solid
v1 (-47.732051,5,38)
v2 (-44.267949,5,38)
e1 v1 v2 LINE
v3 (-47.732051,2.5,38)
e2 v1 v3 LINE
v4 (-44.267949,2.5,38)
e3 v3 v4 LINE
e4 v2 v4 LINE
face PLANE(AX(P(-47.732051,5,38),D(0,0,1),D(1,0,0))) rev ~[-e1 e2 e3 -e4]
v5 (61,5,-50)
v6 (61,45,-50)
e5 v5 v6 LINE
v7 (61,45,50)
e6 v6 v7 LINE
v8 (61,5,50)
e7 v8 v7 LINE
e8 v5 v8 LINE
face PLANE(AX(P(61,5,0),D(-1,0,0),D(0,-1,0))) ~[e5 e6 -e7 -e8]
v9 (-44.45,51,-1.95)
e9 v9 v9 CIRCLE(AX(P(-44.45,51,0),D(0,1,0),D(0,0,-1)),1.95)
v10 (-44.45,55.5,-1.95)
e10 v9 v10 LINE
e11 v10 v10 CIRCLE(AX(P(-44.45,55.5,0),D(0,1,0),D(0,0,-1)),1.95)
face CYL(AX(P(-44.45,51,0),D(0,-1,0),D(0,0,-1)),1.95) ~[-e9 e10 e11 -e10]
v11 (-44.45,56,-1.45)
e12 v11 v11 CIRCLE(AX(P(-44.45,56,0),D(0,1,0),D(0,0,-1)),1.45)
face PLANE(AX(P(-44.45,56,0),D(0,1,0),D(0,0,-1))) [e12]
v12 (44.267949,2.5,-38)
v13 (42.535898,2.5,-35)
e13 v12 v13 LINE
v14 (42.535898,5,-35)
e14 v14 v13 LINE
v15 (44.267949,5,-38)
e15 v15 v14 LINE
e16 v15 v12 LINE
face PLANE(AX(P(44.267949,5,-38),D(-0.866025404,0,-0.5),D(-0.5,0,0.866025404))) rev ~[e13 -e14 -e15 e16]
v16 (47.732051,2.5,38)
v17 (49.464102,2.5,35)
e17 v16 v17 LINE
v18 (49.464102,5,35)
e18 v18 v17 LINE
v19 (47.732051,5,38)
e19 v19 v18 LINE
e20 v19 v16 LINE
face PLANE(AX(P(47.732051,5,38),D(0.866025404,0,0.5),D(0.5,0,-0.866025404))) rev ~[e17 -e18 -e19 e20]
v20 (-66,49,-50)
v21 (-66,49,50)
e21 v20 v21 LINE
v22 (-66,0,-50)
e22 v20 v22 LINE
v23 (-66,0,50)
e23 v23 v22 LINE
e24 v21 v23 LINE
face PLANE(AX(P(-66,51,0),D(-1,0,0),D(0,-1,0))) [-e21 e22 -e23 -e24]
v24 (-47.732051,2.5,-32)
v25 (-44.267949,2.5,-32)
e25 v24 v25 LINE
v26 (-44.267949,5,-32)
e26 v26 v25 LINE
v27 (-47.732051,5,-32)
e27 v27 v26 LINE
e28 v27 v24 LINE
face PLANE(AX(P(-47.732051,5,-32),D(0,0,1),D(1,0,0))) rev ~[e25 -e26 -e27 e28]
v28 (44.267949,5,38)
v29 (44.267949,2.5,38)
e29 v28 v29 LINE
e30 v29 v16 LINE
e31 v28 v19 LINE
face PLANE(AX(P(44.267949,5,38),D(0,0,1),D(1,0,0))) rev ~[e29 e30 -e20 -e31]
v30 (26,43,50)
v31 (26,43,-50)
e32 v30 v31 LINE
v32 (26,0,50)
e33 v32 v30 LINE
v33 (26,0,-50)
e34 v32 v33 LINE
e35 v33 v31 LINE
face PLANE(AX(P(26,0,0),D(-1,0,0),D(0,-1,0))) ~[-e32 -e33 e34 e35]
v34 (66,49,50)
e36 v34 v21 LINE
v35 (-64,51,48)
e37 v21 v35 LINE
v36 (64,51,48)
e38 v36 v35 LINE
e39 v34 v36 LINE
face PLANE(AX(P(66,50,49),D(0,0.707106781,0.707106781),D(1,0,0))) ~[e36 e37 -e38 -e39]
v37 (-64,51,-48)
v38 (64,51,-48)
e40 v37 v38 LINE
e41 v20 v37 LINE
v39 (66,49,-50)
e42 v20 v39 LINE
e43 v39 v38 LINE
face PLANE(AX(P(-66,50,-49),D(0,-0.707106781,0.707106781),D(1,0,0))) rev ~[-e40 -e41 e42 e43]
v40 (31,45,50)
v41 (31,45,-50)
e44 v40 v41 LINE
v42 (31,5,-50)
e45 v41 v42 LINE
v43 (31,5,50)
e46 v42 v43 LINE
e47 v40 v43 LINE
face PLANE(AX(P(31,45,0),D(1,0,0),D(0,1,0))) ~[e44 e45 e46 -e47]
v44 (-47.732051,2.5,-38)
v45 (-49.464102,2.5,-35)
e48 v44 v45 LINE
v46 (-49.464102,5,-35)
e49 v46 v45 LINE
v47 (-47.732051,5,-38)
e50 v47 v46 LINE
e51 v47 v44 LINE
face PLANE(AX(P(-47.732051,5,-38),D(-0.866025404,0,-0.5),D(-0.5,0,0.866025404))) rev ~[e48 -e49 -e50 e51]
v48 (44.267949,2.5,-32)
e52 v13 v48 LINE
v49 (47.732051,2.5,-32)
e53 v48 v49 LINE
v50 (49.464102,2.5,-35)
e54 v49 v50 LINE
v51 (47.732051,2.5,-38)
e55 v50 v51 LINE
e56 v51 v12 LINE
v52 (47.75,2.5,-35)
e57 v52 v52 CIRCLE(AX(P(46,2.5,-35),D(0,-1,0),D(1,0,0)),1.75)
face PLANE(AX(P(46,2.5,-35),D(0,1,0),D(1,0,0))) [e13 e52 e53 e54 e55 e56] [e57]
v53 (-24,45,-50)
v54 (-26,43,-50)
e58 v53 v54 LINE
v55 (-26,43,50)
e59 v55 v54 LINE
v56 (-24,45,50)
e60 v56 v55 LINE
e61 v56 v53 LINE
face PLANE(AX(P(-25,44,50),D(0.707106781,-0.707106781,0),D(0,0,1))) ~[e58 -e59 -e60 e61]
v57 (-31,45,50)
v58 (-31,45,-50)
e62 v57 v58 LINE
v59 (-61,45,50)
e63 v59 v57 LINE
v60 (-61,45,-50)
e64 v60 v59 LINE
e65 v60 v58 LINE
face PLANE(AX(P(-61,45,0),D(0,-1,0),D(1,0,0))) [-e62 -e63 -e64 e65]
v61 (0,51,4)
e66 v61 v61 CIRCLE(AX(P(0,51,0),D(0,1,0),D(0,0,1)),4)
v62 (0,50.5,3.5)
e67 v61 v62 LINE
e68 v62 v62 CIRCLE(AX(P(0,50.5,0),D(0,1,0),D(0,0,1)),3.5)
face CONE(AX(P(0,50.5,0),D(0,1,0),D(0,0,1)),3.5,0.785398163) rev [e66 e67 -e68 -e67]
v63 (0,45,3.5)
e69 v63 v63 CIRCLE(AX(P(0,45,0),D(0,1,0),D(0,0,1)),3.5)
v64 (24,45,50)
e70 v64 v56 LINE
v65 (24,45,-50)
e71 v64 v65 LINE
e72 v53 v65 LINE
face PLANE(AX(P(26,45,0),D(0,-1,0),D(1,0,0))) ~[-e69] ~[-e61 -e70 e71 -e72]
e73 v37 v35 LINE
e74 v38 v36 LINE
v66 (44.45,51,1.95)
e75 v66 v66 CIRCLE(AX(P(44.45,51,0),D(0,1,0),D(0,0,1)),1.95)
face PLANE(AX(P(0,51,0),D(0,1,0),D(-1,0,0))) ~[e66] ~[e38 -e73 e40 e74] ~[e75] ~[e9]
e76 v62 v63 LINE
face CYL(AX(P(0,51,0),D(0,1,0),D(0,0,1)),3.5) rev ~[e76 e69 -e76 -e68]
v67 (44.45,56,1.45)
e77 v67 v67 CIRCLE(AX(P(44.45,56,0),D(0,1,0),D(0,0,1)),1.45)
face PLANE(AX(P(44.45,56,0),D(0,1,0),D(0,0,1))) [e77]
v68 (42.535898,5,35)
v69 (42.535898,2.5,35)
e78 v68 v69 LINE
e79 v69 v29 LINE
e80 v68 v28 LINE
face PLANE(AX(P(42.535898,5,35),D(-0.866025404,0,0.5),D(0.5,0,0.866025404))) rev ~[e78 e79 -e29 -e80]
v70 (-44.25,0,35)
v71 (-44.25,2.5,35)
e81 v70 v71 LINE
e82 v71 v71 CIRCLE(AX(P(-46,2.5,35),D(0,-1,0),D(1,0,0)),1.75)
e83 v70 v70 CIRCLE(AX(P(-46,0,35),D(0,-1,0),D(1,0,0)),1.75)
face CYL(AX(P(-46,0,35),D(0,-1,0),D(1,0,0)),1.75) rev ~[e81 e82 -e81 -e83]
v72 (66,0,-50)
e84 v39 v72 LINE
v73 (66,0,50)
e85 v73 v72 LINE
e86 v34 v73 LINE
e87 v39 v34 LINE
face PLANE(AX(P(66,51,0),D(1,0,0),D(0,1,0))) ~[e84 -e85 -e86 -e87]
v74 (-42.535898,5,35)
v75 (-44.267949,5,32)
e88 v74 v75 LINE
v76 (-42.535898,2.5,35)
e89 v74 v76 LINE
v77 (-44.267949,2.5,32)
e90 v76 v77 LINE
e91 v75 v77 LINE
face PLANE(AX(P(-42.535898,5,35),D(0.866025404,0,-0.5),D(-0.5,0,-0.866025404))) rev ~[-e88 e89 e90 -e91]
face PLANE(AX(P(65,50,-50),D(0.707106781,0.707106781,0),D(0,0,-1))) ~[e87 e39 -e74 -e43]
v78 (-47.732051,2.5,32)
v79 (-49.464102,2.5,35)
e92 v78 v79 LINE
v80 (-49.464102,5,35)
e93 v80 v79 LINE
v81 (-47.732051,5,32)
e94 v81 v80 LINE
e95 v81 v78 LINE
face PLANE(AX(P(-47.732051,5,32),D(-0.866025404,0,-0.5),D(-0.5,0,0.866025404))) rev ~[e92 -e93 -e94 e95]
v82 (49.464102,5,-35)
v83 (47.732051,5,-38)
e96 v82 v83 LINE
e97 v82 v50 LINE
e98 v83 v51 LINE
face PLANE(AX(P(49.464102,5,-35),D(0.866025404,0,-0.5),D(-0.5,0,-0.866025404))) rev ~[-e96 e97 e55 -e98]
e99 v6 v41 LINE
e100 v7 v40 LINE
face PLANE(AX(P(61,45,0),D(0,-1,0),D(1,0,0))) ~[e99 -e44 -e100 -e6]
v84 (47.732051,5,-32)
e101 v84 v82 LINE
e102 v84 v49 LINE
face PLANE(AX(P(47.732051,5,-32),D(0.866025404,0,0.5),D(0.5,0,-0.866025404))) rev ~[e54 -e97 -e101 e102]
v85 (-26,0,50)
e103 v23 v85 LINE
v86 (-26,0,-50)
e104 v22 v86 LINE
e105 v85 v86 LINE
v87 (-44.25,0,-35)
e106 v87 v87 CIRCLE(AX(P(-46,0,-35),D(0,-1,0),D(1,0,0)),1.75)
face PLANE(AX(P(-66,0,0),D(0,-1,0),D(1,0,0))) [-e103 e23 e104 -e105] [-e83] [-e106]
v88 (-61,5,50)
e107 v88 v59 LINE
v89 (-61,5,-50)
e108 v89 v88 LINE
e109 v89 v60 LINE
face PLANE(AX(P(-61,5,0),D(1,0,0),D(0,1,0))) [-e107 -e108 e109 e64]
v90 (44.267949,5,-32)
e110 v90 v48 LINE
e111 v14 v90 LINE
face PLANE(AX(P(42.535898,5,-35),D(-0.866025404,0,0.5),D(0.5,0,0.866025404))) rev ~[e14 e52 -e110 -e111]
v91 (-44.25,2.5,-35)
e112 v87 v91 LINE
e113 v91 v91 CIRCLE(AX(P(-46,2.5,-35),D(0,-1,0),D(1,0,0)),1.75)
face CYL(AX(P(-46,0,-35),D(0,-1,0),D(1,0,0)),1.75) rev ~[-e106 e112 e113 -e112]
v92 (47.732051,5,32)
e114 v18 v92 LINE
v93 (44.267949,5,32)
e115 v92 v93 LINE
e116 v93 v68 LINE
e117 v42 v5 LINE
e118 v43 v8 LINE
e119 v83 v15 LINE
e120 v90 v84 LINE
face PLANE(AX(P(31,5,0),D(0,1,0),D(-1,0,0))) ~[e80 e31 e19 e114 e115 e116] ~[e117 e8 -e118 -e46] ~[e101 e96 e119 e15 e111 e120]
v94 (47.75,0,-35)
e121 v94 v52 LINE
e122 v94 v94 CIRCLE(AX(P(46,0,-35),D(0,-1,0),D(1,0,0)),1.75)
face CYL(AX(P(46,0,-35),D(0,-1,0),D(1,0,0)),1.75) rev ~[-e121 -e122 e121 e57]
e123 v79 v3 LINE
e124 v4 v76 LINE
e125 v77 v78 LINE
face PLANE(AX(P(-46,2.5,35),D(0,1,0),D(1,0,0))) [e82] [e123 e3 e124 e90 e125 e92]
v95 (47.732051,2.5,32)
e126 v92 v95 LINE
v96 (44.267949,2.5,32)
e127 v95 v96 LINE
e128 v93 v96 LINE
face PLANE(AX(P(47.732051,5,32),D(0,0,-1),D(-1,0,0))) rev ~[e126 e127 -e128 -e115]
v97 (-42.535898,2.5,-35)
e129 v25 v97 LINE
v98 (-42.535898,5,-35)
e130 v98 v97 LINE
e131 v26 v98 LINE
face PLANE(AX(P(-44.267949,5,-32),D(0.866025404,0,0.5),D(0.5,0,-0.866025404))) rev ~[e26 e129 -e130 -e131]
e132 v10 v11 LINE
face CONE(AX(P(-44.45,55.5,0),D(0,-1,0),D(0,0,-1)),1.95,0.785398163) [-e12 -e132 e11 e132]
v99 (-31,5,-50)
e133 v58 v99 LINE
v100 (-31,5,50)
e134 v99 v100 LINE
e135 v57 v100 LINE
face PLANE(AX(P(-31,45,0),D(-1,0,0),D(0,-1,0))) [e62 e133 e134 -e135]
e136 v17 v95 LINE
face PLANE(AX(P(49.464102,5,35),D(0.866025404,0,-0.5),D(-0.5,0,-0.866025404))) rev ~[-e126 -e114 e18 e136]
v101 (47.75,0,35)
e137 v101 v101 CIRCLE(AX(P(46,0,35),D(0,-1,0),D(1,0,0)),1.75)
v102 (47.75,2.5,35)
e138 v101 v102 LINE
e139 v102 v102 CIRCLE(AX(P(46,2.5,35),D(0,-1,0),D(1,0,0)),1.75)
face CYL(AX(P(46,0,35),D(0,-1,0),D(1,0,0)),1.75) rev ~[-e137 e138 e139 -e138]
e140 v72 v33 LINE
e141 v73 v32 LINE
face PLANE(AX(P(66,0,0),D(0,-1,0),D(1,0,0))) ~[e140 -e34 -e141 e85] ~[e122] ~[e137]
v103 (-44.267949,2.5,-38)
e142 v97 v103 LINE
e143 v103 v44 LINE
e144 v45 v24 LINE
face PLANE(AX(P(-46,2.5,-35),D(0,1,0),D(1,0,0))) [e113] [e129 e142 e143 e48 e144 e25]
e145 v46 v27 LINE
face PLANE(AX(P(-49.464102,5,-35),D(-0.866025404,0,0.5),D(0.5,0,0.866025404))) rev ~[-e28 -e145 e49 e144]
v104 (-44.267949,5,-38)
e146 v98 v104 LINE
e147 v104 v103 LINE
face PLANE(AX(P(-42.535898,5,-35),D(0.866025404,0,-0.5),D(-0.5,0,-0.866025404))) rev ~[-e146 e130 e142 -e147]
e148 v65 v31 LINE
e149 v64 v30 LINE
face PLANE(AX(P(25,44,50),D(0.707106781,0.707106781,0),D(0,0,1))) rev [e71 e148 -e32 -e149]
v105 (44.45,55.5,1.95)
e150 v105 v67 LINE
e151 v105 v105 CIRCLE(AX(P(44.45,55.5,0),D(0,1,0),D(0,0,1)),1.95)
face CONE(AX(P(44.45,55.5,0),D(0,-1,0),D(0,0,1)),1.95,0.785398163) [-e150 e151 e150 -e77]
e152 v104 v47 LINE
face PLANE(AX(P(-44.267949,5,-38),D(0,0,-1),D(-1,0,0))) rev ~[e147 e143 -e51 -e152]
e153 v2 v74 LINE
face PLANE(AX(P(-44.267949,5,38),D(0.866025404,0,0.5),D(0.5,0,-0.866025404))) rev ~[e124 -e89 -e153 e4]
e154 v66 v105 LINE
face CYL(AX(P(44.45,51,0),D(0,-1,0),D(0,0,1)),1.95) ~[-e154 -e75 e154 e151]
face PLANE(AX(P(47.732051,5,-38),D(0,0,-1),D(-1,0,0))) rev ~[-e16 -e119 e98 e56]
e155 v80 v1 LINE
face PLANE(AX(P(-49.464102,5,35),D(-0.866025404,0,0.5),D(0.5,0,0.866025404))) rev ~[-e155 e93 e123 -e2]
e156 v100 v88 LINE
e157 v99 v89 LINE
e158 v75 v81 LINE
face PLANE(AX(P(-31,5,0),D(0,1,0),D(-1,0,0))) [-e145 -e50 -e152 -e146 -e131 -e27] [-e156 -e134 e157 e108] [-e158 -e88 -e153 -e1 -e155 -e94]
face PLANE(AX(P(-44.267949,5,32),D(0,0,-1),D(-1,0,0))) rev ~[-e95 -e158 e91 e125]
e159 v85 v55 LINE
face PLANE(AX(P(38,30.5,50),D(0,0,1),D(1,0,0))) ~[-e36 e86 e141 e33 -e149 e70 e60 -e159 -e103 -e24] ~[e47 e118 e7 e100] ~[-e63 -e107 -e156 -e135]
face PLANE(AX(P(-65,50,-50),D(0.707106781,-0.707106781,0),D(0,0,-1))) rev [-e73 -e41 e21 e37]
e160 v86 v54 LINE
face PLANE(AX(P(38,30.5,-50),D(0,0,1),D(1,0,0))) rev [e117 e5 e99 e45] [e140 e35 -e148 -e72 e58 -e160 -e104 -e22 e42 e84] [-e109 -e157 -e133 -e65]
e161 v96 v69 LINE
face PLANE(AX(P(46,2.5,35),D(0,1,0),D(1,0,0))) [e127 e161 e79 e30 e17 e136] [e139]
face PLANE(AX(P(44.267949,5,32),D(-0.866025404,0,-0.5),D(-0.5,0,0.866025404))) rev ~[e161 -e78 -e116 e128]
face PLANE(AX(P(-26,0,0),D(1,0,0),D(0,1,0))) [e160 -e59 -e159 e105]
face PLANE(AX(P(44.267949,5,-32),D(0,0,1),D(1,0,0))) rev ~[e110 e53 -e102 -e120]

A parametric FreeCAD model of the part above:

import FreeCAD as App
import Part
import Sketcher
Q = App.Units.Quantity


def edges_at(feature, points):
    """Names of the edges that pass closest to the given points."""
    edges = feature.Shape.Edges
    near = lambda p: min(range(len(edges)), key=lambda i: edges[i].distToShape(Part.Vertex(*p))[0])
    return sorted({f"Edge{near(p) + 1}" for p in points})


def add_polygon(sketch, points):
    """Adds a closed chain of lines whose ends are joined by coincident constraints."""
    first, n = sketch.GeometryCount, len(points)
    for a, b in zip(points, points[1:] + points[:1]):
        sketch.addGeometry(Part.LineSegment(App.Vector(*a, 0), App.Vector(*b, 0)), False)
    for i in range(n):
        sketch.addConstraint(Sketcher.Constraint("Coincident", first + i, 2, first + (i + 1) % n, 1))

doc = App.newDocument("Part")
params = doc.addObject("Spreadsheet::Sheet", "Params")
for row, (alias, value) in enumerate([
    ("sketch1_width", "26 mm"),
    ("sketch1_width2", "66 mm"),
    ("sketch1_width3", "30 mm"),
    ("sketch1_height", "6 mm"),
    ("sketch1_height2", "51 mm"),
    ("pad1_length", "100 mm"),
    ("sketch2_diameter", "7 mm"),
    ("sketch3_diameter", "3.9 mm"),
    ("pad2_length", "5 mm"),
    ("sketch4_diameter", "3.5 mm"),
    ("sketch5_diameter", "3.5 mm"),
    ("sketch6_diameter", "3.5 mm"),
    ("sketch7_diameter", "3.5 mm"),
    ("chamfer_size", "2 mm"),
    ("chamfer2_size", "2 mm"),
    ("chamfer3_size", "0.5 mm"),
    ("pocket6_length", "2.5 mm"),
], start=1):
    params.set(f"A{row}", alias)
    params.set(f"B{row}", "=" + value)
    params.setAlias(f"B{row}", alias)

body = doc.addObject("PartDesign::Body", "Body")

# Sketch on XY plane
sketch1 = body.newObject("Sketcher::SketchObject", "Sketch")
sketch1.AttachmentSupport = (doc.getObject("XY_Plane"), [""])
sketch1.MapMode = "FlatFace"
add_polygon(sketch1, [(-26, 45), (0, 45), (0, 51), (-66, 51), (-66, 0), (-26, 0)])  # lines 0-5
add_polygon(sketch1, [(-31, 45), (-31, 5), (-61, 5), (-61, 45)])  # lines 6-9
sketch1.addConstraint([
    Sketcher.Constraint("Horizontal", 0),
    Sketcher.Constraint("Vertical", 1),
    Sketcher.Constraint("Horizontal", 2),
    Sketcher.Constraint("Vertical", 3),
    Sketcher.Constraint("Horizontal", 4),
    Sketcher.Constraint("Vertical", 5),
    Sketcher.Constraint("Vertical", 6),
    Sketcher.Constraint("Horizontal", 7),
    Sketcher.Constraint("Vertical", 8),
    Sketcher.Constraint("Horizontal", 9),
    Sketcher.Constraint("PointOnObject", 0, 2, -2),
    Sketcher.Constraint("PointOnObject", 3, 2, -1),
    Sketcher.Constraint("Horizontal", 5, 2, 8, 2),
    Sketcher.Constraint("Equal", 4, 6),
    Sketcher.Constraint("DistanceX", 0, 1, 0, 2, 26.0),
    Sketcher.Constraint("DistanceX", 2, 2, 2, 1, 66.0),
    Sketcher.Constraint("DistanceX", 7, 2, 7, 1, 30.0),
    Sketcher.Constraint("DistanceY", 1, 1, 1, 2, 6.0),
    Sketcher.Constraint("DistanceY", 3, 2, 3, 1, 51.0),
    Sketcher.Constraint("DistanceX", 6, 2, -1, 1, 31.0),
])
sketch1.setExpression("Constraints[24]", "Params.sketch1_width")
sketch1.setExpression("Constraints[25]", "Params.sketch1_width2")
sketch1.setExpression("Constraints[26]", "Params.sketch1_width3")
sketch1.setExpression("Constraints[27]", "Params.sketch1_height")
sketch1.setExpression("Constraints[28]", "Params.sketch1_height2")
pad1 = body.newObject("PartDesign::Pad", "Pad")
pad1.Profile = sketch1
pad1.setExpression("Length", "Params.pad1_length")
pad1.Midplane = True
doc.recompute()

mirrored = body.newObject("PartDesign::Mirrored", "Mirrored")
mirrored.Originals = [pad1]
mirrored.MirrorPlane = (doc.getObject("YZ_Plane"), [""])
body.Tip = mirrored

# Sketch on XZ plane
sketch2 = body.newObject("Sketcher::SketchObject", "Sketch001")
sketch2.AttachmentSupport = (doc.getObject("XZ_Plane"), [""])
sketch2.MapMode = "FlatFace"
sketch2.AttachmentOffset = App.Placement(App.Vector(0, 0, -51), App.Rotation())
sketch2.addGeometry(Part.Circle(App.Vector(0, 0, 0), App.Vector(0, 0, 1), 3.5), False)
sketch2.addConstraint([
    Sketcher.Constraint("Coincident", 0, 3, -1, 1),
    Sketcher.Constraint("Diameter", 0, 7.0),
])
sketch2.setExpression("Constraints[1]", "Params.sketch2_diameter")
pocket1 = body.newObject("PartDesign::Pocket", "Pocket")
pocket1.Profile = sketch2
pocket1.Type = "ThroughAll"
pocket1.Reversed = True

# Sketch on XZ plane
sketch3 = body.newObject("Sketcher::SketchObject", "Sketch002")
sketch3.AttachmentSupport = (doc.getObject("XZ_Plane"), [""])
sketch3.MapMode = "FlatFace"
sketch3.AttachmentOffset = App.Placement(App.Vector(0, 0, -51), App.Rotation())
sketch3.addGeometry([
    Part.Circle(App.Vector(44.45, 0, 0), App.Vector(0, 0, 1), 1.95),
    Part.Circle(App.Vector(-44.45, 0, 0), App.Vector(0, 0, 1), 1.95),
], False)
sketch3.addConstraint([
    Sketcher.Constraint("Equal", 0, 1),
    Sketcher.Constraint("Symmetric", 0, 3, 1, 3, -1, 1),
    Sketcher.Constraint("PointOnObject", 0, 3, -1),
    Sketcher.Constraint("Diameter", 0, 3.9),
    Sketcher.Constraint("DistanceX", 1, 3, 0, 3, 88.9),
])
sketch3.setExpression("Constraints[3]", "Params.sketch3_diameter")
pad2 = body.newObject("PartDesign::Pad", "Pad001")
pad2.Profile = sketch3
pad2.setExpression("Length", "Params.pad2_length")
pad2.Reversed = True

# Sketch on XZ plane
sketch4 = body.newObject("Sketcher::SketchObject", "Sketch003")
sketch4.AttachmentSupport = (doc.getObject("XZ_Plane"), [""])
sketch4.MapMode = "FlatFace"
sketch4.addGeometry(Part.Circle(App.Vector(-46, 35, 0), App.Vector(0, 0, 1), 1.75), False)
sketch4.addConstraint([
    Sketcher.Constraint("Diameter", 0, 3.5),
    Sketcher.Constraint("DistanceX", 0, 3, -1, 1, 46.0),
    Sketcher.Constraint("DistanceY", -1, 1, 0, 3, 35.0),
])
sketch4.setExpression("Constraints[0]", "Params.sketch4_diameter")
pocket2 = body.newObject("PartDesign::Pocket", "Pocket001")
pocket2.Profile = sketch4
pocket2.Type = "UpToFirst"

# Sketch on XZ plane
sketch5 = body.newObject("Sketcher::SketchObject", "Sketch004")
sketch5.AttachmentSupport = (doc.getObject("XZ_Plane"), [""])
sketch5.MapMode = "FlatFace"
sketch5.addGeometry(Part.Circle(App.Vector(46, 35, 0), App.Vector(0, 0, 1), 1.75), False)
sketch5.addConstraint([
    Sketcher.Constraint("Diameter", 0, 3.5),
    Sketcher.Constraint("DistanceX", -1, 1, 0, 3, 46.0),
    Sketcher.Constraint("DistanceY", -1, 1, 0, 3, 35.0),
])
sketch5.setExpression("Constraints[0]", "Params.sketch5_diameter")
pocket3 = body.newObject("PartDesign::Pocket", "Pocket002")
pocket3.Profile = sketch5
pocket3.Type = "UpToFirst"

# Sketch on XZ plane
sketch6 = body.newObject("Sketcher::SketchObject", "Sketch005")
sketch6.AttachmentSupport = (doc.getObject("XZ_Plane"), [""])
sketch6.MapMode = "FlatFace"
sketch6.addGeometry(Part.Circle(App.Vector(46, -35, 0), App.Vector(0, 0, 1), 1.75), False)
sketch6.addConstraint([
    Sketcher.Constraint("Diameter", 0, 3.5),
    Sketcher.Constraint("DistanceX", -1, 1, 0, 3, 46.0),
    Sketcher.Constraint("DistanceY", 0, 3, -1, 1, 35.0),
])
sketch6.setExpression("Constraints[0]", "Params.sketch6_diameter")
pocket4 = body.newObject("PartDesign::Pocket", "Pocket003")
pocket4.Profile = sketch6
pocket4.Type = "UpToFirst"

# Sketch on XZ plane
sketch7 = body.newObject("Sketcher::SketchObject", "Sketch006")
sketch7.AttachmentSupport = (doc.getObject("XZ_Plane"), [""])
sketch7.MapMode = "FlatFace"
sketch7.addGeometry(Part.Circle(App.Vector(-46, -35, 0), App.Vector(0, 0, 1), 1.75), False)
sketch7.addConstraint([
    Sketcher.Constraint("Diameter", 0, 3.5),
    Sketcher.Constraint("DistanceX", 0, 3, -1, 1, 46.0),
    Sketcher.Constraint("DistanceY", 0, 3, -1, 1, 35.0),
])
sketch7.setExpression("Constraints[0]", "Params.sketch7_diameter")
pocket5 = body.newObject("PartDesign::Pocket", "Pocket004")
pocket5.Profile = sketch7
pocket5.Type = "UpToFirst"
doc.recompute()

chamfer = body.newObject("PartDesign::Chamfer", "Chamfer")
chamfer.Base = (pocket5, edges_at(pocket5, [(-26, 45, 0), (26, 45, 0)]))
chamfer.setExpression("Size", "Params.chamfer_size")
doc.recompute()

chamfer2 = body.newObject("PartDesign::Chamfer", "Chamfer001")
chamfer2.Base = (chamfer, edges_at(chamfer, [
    (0, 51, -50),
    (-66, 51, 0),
    (66, 51, 0),
    (0, 51, 50),
]))
chamfer2.setExpression("Size", "Params.chamfer2_size")
doc.recompute()

chamfer3 = body.newObject("PartDesign::Chamfer", "Chamfer002")
chamfer3.Base = (chamfer2, edges_at(chamfer2, [(0, 51, -3.5), (44.45, 56, -1.95), (-44.45, 56, 1.95)]))
chamfer3.setExpression("Size", "Params.chamfer3_size")

# Sketch on XZ plane
sketch8 = body.newObject("Sketcher::SketchObject", "Sketch007")
sketch8.AttachmentSupport = (doc.getObject("XZ_Plane"), [""])
sketch8.MapMode = "FlatFace"
sketch8.AttachmentOffset = App.Placement(App.Vector(0, 0, -5), App.Rotation())
add_polygon(sketch8, [(42.535898, -35), (44.267949, -32), (47.732051, -32), (49.464102, -35), (47.732051, -38), (44.267949, -38)])  # lines 0-5
add_polygon(sketch8, [(-47.732051, -32), (-44.267949, -32), (-42.535898, -35), (-44.267949, -38), (-47.732051, -38), (-49.464102, -35)])  # lines 6-11
add_polygon(sketch8, [(-47.732051, 38), (-44.267949, 38), (-42.535898, 35), (-44.267949, 32), (-47.732051, 32), (-49.464102, 35)])  # lines 12-17
add_polygon(sketch8, [(42.535898, 35), (44.267949, 38), (47.732051, 38), (49.464102, 35), (47.732051, 32), (44.267949, 32)])  # lines 18-23
sketch8.addConstraint([
    Sketcher.Constraint("Horizontal", 1),
    Sketcher.Constraint("Horizontal", 4),
    Sketcher.Constraint("Horizontal", 6),
    Sketcher.Constraint("Horizontal", 9),
    Sketcher.Constraint("Horizontal", 12),
    Sketcher.Constraint("Horizontal", 15),
    Sketcher.Constraint("Horizontal", 19),
    Sketcher.Constraint("Horizontal", 22),
    Sketcher.Constraint("Symmetric", 4, 2, 12, 2, -1, 1),
    Sketcher.Constraint("Symmetric", 5, 2, 13, 2, -1, 1),
    Sketcher.Constraint("Symmetric", 0, 2, 14, 2, -1, 1),
    Sketcher.Constraint("Symmetric", 2, 2, 16, 2, -1, 1),
    Sketcher.Constraint("Symmetric", 8, 2, 18, 2, -1, 1),
    Sketcher.Constraint("Symmetric", 10, 2, 20, 2, -1, 1),
    Sketcher.Constraint("Symmetric", 11, 2, 21, 2, -1, 1),
    Sketcher.Constraint("Symmetric", 7, 2, 23, 2, -1, 1),
    Sketcher.Constraint("Symmetric", 0, 2, 6, 2, -2),
    Sketcher.Constraint("Symmetric", 5, 2, 7, 2, -2),
    Sketcher.Constraint("Symmetric", 4, 2, 8, 2, -2),
    Sketcher.Constraint("Symmetric", 2, 2, 10, 2, -2),
    Sketcher.Constraint("Parallel", 0, 3),
    Sketcher.Constraint("Parallel", 2, 5),
    Sketcher.Constraint("Parallel", 5, 7),
    Sketcher.Constraint("Parallel", 7, 10),
    Sketcher.Constraint("Parallel", 8, 11),
    Sketcher.Constraint("Parallel", 13, 16),
    Sketcher.Constraint("Parallel", 14, 17),
    Sketcher.Constraint("Parallel", 16, 20),
    Sketcher.Constraint("Parallel", 20, 23),
    Sketcher.Constraint("Horizontal", 2, 2, 5, 2),
    Sketcher.Constraint("Vertical", 1, 2, 3, 2),
    Sketcher.Constraint("Angle", 0, Q("60 deg")),
    Sketcher.Constraint("DistanceY", 0, 2, -1, 1, 32.0),
    Sketcher.Constraint("DistanceY", 2, 2, -1, 1, 35.0),
    Sketcher.Constraint("DistanceX", 6, 2, 1, 2, 92.0),
    Sketcher.Constraint("DistanceX", 1, 1, 1, 2, 3.464102),
])
pocket6 = body.newObject("PartDesign::Pocket", "Pocket005")
pocket6.Profile = sketch8
pocket6.setExpression("Length", "Params.pocket6_length")
pocket6.Reversed = True

doc.recompute()
